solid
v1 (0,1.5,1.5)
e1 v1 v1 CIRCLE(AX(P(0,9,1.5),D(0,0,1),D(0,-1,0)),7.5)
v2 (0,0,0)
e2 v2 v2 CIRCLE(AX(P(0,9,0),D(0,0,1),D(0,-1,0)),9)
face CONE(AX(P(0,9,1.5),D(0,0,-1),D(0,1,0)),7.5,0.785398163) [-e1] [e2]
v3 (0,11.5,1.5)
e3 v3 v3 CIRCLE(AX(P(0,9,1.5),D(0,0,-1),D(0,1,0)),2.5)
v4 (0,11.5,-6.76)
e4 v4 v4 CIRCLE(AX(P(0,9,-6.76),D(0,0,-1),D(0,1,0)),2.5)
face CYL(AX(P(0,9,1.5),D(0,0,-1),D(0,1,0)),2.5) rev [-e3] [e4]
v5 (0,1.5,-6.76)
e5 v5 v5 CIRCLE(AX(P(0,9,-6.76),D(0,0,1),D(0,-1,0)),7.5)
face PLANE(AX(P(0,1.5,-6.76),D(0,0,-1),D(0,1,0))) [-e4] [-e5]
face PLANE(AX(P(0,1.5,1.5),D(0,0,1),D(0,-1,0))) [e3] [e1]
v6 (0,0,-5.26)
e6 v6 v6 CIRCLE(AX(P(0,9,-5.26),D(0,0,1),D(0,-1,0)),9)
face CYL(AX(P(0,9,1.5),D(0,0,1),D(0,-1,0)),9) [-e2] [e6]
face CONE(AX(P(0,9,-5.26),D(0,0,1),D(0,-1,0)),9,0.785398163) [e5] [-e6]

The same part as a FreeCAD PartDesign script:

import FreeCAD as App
import Part
import Sketcher

V = App.Vector


def add_polygon(sketch, points):
    """Adds a closed chain of lines whose ends are joined by coincident constraints."""
    first, n = sketch.GeometryCount, len(points)
    for a, b in zip(points, points[1:] + points[:1]):
        sketch.addGeometry(Part.LineSegment(App.Vector(*a, 0), App.Vector(*b, 0)), False)
    for i in range(n):
        sketch.addConstraint(Sketcher.Constraint("Coincident", first + i, 2, first + (i + 1) % n, 1))

doc = App.newDocument("Part")
body = doc.addObject("PartDesign::Body", "Body")

# Sketch on YZ plane
sketch1 = body.newObject("Sketcher::SketchObject", "Sketch")
sketch1.AttachmentSupport = (doc.getObject("YZ_Plane"), [""])
sketch1.MapMode = "FlatFace"
add_polygon(sketch1, [(0, 0), (0, -5.3), (1.5, -6.8), (9, -6.8), (9, 1.5), (1.5, 1.5)])  # lines 0-5
sketch1.addGeometry(Part.LineSegment(V(9, 1.5, 0), V(9, -6.8, 0)), True)  # axis
sketch1.addConstraint([
    Sketcher.Constraint("Vertical", 0),
    Sketcher.Constraint("Horizontal", 2),
    Sketcher.Constraint("Vertical", 3),
    Sketcher.Constraint("Horizontal", 4),
    Sketcher.Constraint("Vertical", 6),
    Sketcher.Constraint("Coincident", 5, 2, -1, 1),
    Sketcher.Constraint("Coincident", 6, 1, 3, 2),
    Sketcher.Constraint("Perpendicular", 1, 5),
    Sketcher.Constraint("Horizontal", 1, 2, 6, 2),
    Sketcher.Constraint("Vertical", 1, 2, 4, 2),
    Sketcher.Constraint("Equal", 1, 5),
    Sketcher.Constraint("DistanceX", 2, 1, 2, 2, 7.5),
    Sketcher.Constraint("DistanceX", -1, 1, 2, 2, 9.0),
    Sketcher.Constraint("DistanceY", 0, 2, 0, 1, 5.26),
])
revolution = body.newObject("PartDesign::Revolution", "Revolution")
revolution.Profile = sketch1
revolution.ReferenceAxis = (sketch1, ["Axis0"])
revolution.Angle = 360

# Sketch on XY plane
sketch2 = body.newObject("Sketcher::SketchObject", "Sketch001")
sketch2.AttachmentSupport = (doc.getObject("XY_Plane"), [""])
sketch2.MapMode = "FlatFace"
sketch2.AttachmentOffset = App.Placement(V(0, 0, -6.76), App.Rotation())
sketch2.addGeometry(Part.Circle(V(0, 9, 0), V(0, 0, 1), 2.5), False)
sketch2.addConstraint([
    Sketcher.Constraint("PointOnObject", 0, 3, -2),
    Sketcher.Constraint("Diameter", 0, 5.0),
    Sketcher.Constraint("DistanceY", -1, 1, 0, 3, 9.0),
])
pocket1 = body.newObject("PartDesign::Pocket", "Pocket")
pocket1.Profile = sketch2
pocket1.Type = "ThroughAll"
pocket1.Reversed = True

doc.recompute()
